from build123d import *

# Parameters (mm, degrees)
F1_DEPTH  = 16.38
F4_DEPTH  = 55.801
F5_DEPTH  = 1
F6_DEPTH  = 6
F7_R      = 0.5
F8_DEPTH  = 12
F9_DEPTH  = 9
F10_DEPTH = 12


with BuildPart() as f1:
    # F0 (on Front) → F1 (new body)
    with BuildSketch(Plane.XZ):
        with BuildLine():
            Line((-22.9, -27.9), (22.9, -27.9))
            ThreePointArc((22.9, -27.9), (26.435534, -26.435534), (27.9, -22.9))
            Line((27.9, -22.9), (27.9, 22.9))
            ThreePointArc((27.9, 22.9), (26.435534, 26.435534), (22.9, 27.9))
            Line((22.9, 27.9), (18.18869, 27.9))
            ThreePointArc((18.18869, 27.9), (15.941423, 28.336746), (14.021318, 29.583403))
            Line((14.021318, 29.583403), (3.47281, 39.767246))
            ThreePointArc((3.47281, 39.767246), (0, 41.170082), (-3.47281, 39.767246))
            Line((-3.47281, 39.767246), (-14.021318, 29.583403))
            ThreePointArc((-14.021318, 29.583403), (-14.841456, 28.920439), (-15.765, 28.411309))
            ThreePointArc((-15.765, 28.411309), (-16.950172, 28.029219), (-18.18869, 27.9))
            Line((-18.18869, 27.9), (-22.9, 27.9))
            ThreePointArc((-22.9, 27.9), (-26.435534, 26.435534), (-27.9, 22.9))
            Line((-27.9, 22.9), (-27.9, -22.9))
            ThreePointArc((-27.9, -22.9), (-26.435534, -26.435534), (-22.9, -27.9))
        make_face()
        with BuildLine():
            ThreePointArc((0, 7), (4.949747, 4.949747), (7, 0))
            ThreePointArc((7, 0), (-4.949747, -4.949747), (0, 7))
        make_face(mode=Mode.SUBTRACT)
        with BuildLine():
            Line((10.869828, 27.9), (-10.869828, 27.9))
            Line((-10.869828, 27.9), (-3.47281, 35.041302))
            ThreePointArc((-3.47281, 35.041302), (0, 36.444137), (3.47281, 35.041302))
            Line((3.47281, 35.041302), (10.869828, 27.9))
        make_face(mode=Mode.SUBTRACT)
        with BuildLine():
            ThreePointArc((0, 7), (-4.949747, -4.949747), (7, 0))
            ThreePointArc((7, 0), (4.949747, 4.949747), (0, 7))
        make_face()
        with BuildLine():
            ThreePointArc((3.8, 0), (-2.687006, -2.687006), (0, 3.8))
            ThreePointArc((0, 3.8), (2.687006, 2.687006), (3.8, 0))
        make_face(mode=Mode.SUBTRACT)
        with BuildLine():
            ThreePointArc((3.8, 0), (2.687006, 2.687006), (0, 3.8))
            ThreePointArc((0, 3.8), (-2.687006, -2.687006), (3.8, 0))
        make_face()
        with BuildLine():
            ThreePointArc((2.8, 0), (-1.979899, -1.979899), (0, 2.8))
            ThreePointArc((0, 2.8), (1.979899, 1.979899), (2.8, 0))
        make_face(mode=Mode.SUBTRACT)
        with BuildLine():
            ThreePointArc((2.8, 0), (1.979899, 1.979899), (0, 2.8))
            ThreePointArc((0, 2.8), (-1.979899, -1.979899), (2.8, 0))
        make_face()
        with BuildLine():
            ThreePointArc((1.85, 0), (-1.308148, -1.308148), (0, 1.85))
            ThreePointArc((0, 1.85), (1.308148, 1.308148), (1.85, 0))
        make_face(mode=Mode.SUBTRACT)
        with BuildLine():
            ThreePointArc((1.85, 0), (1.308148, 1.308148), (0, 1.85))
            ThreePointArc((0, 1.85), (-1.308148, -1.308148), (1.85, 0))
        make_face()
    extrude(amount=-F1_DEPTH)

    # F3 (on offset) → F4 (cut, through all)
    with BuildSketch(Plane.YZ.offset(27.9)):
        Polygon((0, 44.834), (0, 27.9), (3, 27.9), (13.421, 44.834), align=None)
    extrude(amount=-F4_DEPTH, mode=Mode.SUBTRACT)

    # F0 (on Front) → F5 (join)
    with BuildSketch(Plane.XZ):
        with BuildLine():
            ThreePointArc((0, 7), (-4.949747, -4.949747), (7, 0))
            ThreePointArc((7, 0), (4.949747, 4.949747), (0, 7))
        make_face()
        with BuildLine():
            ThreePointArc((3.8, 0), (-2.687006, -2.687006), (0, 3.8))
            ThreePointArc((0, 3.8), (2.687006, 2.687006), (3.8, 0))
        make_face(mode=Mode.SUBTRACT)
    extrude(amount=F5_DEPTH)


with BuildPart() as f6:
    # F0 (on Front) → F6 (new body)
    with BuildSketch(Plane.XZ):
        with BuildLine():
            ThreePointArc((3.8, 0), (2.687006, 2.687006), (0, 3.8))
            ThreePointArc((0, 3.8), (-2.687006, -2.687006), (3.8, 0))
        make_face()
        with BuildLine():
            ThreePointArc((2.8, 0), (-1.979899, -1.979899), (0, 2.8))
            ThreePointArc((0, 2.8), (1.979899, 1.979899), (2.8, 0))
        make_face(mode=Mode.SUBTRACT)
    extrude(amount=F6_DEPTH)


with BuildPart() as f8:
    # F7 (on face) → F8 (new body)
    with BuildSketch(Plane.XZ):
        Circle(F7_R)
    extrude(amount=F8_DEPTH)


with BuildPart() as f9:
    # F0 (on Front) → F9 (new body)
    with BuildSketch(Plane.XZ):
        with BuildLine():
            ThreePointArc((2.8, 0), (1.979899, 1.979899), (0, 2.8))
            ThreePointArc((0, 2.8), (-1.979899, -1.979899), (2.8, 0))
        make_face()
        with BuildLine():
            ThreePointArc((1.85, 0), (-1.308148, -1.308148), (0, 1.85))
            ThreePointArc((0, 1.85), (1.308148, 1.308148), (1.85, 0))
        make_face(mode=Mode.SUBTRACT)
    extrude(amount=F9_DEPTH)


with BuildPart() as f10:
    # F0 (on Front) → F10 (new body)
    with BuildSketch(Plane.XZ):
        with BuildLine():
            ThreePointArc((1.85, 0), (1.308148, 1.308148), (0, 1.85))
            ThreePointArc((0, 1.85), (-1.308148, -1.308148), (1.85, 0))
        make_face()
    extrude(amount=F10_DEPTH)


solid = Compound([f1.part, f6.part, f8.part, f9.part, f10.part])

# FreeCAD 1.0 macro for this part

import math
import FreeCAD as App
import Part
import Sketcher
Q = App.Units.Quantity


def add_polygon(sketch, points):
    """Adds a closed chain of lines whose ends are joined by coincident constraints."""
    first, n = sketch.GeometryCount, len(points)
    for a, b in zip(points, points[1:] + points[:1]):
        sketch.addGeometry(Part.LineSegment(App.Vector(*a, 0), App.Vector(*b, 0)), False)
    for i in range(n):
        sketch.addConstraint(Sketcher.Constraint("Coincident", first + i, 2, first + (i + 1) % n, 1))

doc = App.newDocument("Part")
body = doc.addObject("PartDesign::Body", "Body")

# Sketch on XZ plane
sketch1 = body.newObject("Sketcher::SketchObject", "Sketch")
sketch1.AttachmentSupport = (doc.getObject("XZ_Plane"), [""])
sketch1.MapMode = "FlatFace"
sketch1.addGeometry(Part.LineSegment(App.Vector(-22.9, -27.9, 0), App.Vector(22.9, -27.9, 0)), False)
sketch1.addGeometry(Part.ArcOfCircle(Part.Circle(App.Vector(22.9, -22.9, 0), App.Vector(0, 0, 1), 5), math.radians(-90.000004), math.radians(0.000004)), False)
sketch1.addGeometry(Part.LineSegment(App.Vector(27.9, -22.9, 0), App.Vector(27.9, 22.9, 0)), False)
sketch1.addGeometry(Part.ArcOfCircle(Part.Circle(App.Vector(22.9, 22.9, 0), App.Vector(0, 0, 1), 5), math.radians(-0.000004), math.radians(90.000004)), False)
sketch1.addGeometry(Part.LineSegment(App.Vector(22.9, 27.9, 0), App.Vector(18.18869, 27.9, 0)), False)
sketch1.addGeometry(Part.ArcOfCircle(Part.Circle(App.Vector(18.188688, 33.899995, 0), App.Vector(0, 0, 1), 5.999995), math.radians(-133.992345), math.radians(-89.999982)), False)
sketch1.addGeometry(Part.LineSegment(App.Vector(14.021318, 29.583403, 0), App.Vector(3.47281, 39.767246, 0)), False)
sketch1.addGeometry(Part.ArcOfCircle(Part.Circle(App.Vector(0, 36.170083, 0), App.Vector(0, 0, 1), 4.999999), math.radians(46.007668), math.radians(133.992332)), False)
sketch1.addGeometry(Part.LineSegment(App.Vector(-3.47281, 39.767246, 0), App.Vector(-14.021318, 29.583403, 0)), False)
sketch1.addGeometry(Part.ArcOfCircle(Part.Circle(App.Vector(-18.188683, 33.899988, 0), App.Vector(0, 0, 1), 5.999986), math.radians(-66.174776), math.radians(-46.007644)), False)
sketch1.addGeometry(Part.ArcOfCircle(Part.Circle(App.Vector(-18.188693, 33.900018, 0), App.Vector(0, 0, 1), 6.000018), math.radians(-89.999968), math.radians(-66.174799)), False)
sketch1.addGeometry(Part.LineSegment(App.Vector(-18.18869, 27.9, 0), App.Vector(-22.9, 27.9, 0)), False)
sketch1.addGeometry(Part.ArcOfCircle(Part.Circle(App.Vector(-22.9, 22.9, 0), App.Vector(0, 0, 1), 5), math.radians(89.999996), math.radians(180.000004)), False)
sketch1.addGeometry(Part.LineSegment(App.Vector(-27.9, 22.9, 0), App.Vector(-27.9, -22.9, 0)), False)
sketch1.addGeometry(Part.ArcOfCircle(Part.Circle(App.Vector(-22.9, -22.9, 0), App.Vector(0, 0, 1), 5), math.radians(179.999996), math.radians(270.000004)), False)
sketch1.addGeometry(Part.LineSegment(App.Vector(3.47281, 35.041302, 0), App.Vector(10.869828, 27.9, 0)), False)
sketch1.addGeometry(Part.LineSegment(App.Vector(10.869828, 27.9, 0), App.Vector(-10.869828, 27.9, 0)), False)
sketch1.addGeometry(Part.LineSegment(App.Vector(-10.869828, 27.9, 0), App.Vector(-3.47281, 35.041302, 0)), False)
sketch1.addGeometry(Part.ArcOfCircle(Part.Circle(App.Vector(0, 31.444135, 0), App.Vector(0, 0, 1), 5.000002), math.radians(46.007696), math.radians(133.992304)), False)
sketch1.addConstraint(Sketcher.Constraint("Coincident", 0, 2, 1, 1))
sketch1.addConstraint(Sketcher.Constraint("Coincident", 1, 2, 2, 1))
sketch1.addConstraint(Sketcher.Constraint("Coincident", 2, 2, 3, 1))
sketch1.addConstraint(Sketcher.Constraint("Coincident", 3, 2, 4, 1))
sketch1.addConstraint(Sketcher.Constraint("Coincident", 4, 2, 5, 2))
sketch1.addConstraint(Sketcher.Constraint("Coincident", 5, 1, 6, 1))
sketch1.addConstraint(Sketcher.Constraint("Coincident", 6, 2, 7, 1))
sketch1.addConstraint(Sketcher.Constraint("Coincident", 7, 2, 8, 1))
sketch1.addConstraint(Sketcher.Constraint("Coincident", 8, 2, 9, 2))
sketch1.addConstraint(Sketcher.Constraint("Coincident", 9, 1, 10, 2))
sketch1.addConstraint(Sketcher.Constraint("Coincident", 10, 1, 11, 1))
sketch1.addConstraint(Sketcher.Constraint("Coincident", 11, 2, 12, 1))
sketch1.addConstraint(Sketcher.Constraint("Coincident", 12, 2, 13, 1))
sketch1.addConstraint(Sketcher.Constraint("Coincident", 13, 2, 14, 1))
sketch1.addConstraint(Sketcher.Constraint("Coincident", 14, 2, 0, 1))
sketch1.addConstraint(Sketcher.Constraint("Coincident", 15, 2, 16, 1))
sketch1.addConstraint(Sketcher.Constraint("Coincident", 16, 2, 17, 1))
sketch1.addConstraint(Sketcher.Constraint("Coincident", 17, 2, 18, 2))
sketch1.addConstraint(Sketcher.Constraint("Coincident", 18, 1, 15, 1))
sketch1.addConstraint(Sketcher.Constraint("Horizontal", 0))
sketch1.addConstraint(Sketcher.Constraint("Vertical", 2))
sketch1.addConstraint(Sketcher.Constraint("Horizontal", 4))
sketch1.addConstraint(Sketcher.Constraint("Horizontal", 11))
sketch1.addConstraint(Sketcher.Constraint("Vertical", 13))
sketch1.addConstraint(Sketcher.Constraint("Horizontal", 16))
sketch1.addConstraint(Sketcher.Constraint("PointOnObject", 7, 3, -2))
sketch1.addConstraint(Sketcher.Constraint("PointOnObject", 18, 3, -2))
sketch1.addConstraint(Sketcher.Constraint("Radius", 1, Q("5 mm")))
sketch1.addConstraint(Sketcher.Constraint("Radius", 3, Q("5 mm")))
sketch1.addConstraint(Sketcher.Constraint("Radius", 7, Q("4.999999 mm")))
sketch1.addConstraint(Sketcher.Constraint("Radius", 12, Q("5 mm")))
sketch1.addConstraint(Sketcher.Constraint("Radius", 14, Q("5 mm")))
sketch1.addConstraint(Sketcher.Constraint("Radius", 18, Q("5.000002 mm")))
sketch1.addConstraint(Sketcher.Constraint("DistanceX", 0, 1, 0, 2, Q("45.8 mm")))
sketch1.addConstraint(Sketcher.Constraint("DistanceY", 2, 1, 2, 2, Q("45.8 mm")))
sketch1.addConstraint(Sketcher.Constraint("DistanceY", 13, 2, 13, 1, Q("45.8 mm")))
sketch1.addConstraint(Sketcher.Constraint("DistanceX", 0, 2, 1, 2, Q("5 mm")))
sketch1.addConstraint(Sketcher.Constraint("DistanceY", 0, 2, 1, 2, Q("5 mm")))
sketch1.addConstraint(Sketcher.Constraint("DistanceX", 3, 2, 2, 2, Q("5 mm")))
sketch1.addConstraint(Sketcher.Constraint("DistanceY", 2, 2, 3, 2, Q("5 mm")))
sketch1.addConstraint(Sketcher.Constraint("DistanceX", 12, 2, 11, 2, Q("5 mm")))
sketch1.addConstraint(Sketcher.Constraint("DistanceY", 12, 2, 11, 2, Q("5 mm")))
sketch1.addConstraint(Sketcher.Constraint("DistanceY", 0, 2, 13, 2, Q("5 mm")))
sketch1.addConstraint(Sketcher.Constraint("DistanceX", 13, 2, 14, 2, Q("5 mm")))
sketch1.addConstraint(Sketcher.Constraint("DistanceX", -1, 1, 1, 3, Q("22.9 mm")))
sketch1.addConstraint(Sketcher.Constraint("DistanceY", 1, 3, -1, 1, Q("22.9 mm")))
sketch1.addConstraint(Sketcher.Constraint("DistanceY", -1, 1, 15, 2, Q("27.9 mm")))
sketch1.addConstraint(Sketcher.Constraint("DistanceX", 9, 1, -1, 1, Q("15.765 mm")))
sketch1.addConstraint(Sketcher.Constraint("Radius", 5, Q("5.999995 mm")))
sketch1.addConstraint(Sketcher.Constraint("Radius", 9, Q("5.999986 mm")))
sketch1.addConstraint(Sketcher.Constraint("Radius", 10, Q("6.000018 mm")))
sketch1.addConstraint(Sketcher.Constraint("DistanceX", 4, 2, 4, 1, Q("4.71131 mm")))
sketch1.addConstraint(Sketcher.Constraint("DistanceX", 11, 2, 11, 1, Q("4.71131 mm")))
sketch1.addConstraint(Sketcher.Constraint("DistanceX", 16, 2, 16, 1, Q("21.739656 mm")))
sketch1.addConstraint(Sketcher.Constraint("DistanceX", -1, 1, 5, 3, Q("18.188688 mm")))
sketch1.addConstraint(Sketcher.Constraint("DistanceX", -1, 1, 5, 1, Q("14.021318 mm")))
sketch1.addConstraint(Sketcher.Constraint("DistanceX", -1, 1, 6, 2, Q("3.47281 mm")))
sketch1.addConstraint(Sketcher.Constraint("DistanceX", 7, 2, -1, 1, Q("3.47281 mm")))
sketch1.addConstraint(Sketcher.Constraint("DistanceX", 8, 2, -1, 1, Q("14.021318 mm")))
sketch1.addConstraint(Sketcher.Constraint("DistanceY", -1, 1, 9, 1, Q("28.411309 mm")))
sketch1.addConstraint(Sketcher.Constraint("DistanceX", 17, 2, -1, 1, Q("3.47281 mm")))
sketch1.addConstraint(Sketcher.Constraint("DistanceX", -1, 1, 18, 1, Q("3.47281 mm")))
sketch1.addConstraint(Sketcher.Constraint("DistanceX", 9, 3, 5, 3, Q("36.377371 mm")))
sketch1.addConstraint(Sketcher.Constraint("DistanceY", 18, 3, 5, 3, Q("2.45586 mm")))
sketch1.addConstraint(Sketcher.Constraint("DistanceY", 18, 3, 6, 2, Q("8.323111 mm")))
sketch1.addConstraint(Sketcher.Constraint("DistanceX", 15, 2, 5, 1, Q("3.15149 mm")))
pad1 = body.newObject("PartDesign::Pad", "Pad")
pad1.Profile = sketch1
pad1.Length = 16.38
pad1.Reversed = True

# Sketch on YZ plane
sketch2 = body.newObject("Sketcher::SketchObject", "Sketch001")
sketch2.AttachmentSupport = (doc.getObject("YZ_Plane"), [""])
sketch2.MapMode = "FlatFace"
sketch2.AttachmentOffset = App.Placement(App.Vector(0, 0, 27.9), App.Rotation())
add_polygon(sketch2, [(0, 44.8), (0, 27.9), (3, 27.9), (13.4, 44.8)])  # lines 0-3
sketch2.addConstraint(Sketcher.Constraint("Vertical", 0))
sketch2.addConstraint(Sketcher.Constraint("Horizontal", 1))
sketch2.addConstraint(Sketcher.Constraint("Horizontal", 3))
sketch2.addConstraint(Sketcher.Constraint("PointOnObject", 0, 2, -2))
sketch2.addConstraint(Sketcher.Constraint("DistanceX", 1, 1, 1, 2, Q("3 mm")))
sketch2.addConstraint(Sketcher.Constraint("DistanceY", -1, 1, 0, 2, Q("27.9 mm")))
sketch2.addConstraint(Sketcher.Constraint("DistanceX", 3, 2, 3, 1, Q("13.421 mm")))
sketch2.addConstraint(Sketcher.Constraint("DistanceY", 0, 2, 0, 1, Q("16.934 mm")))
pocket1 = body.newObject("PartDesign::Pocket", "Pocket")
pocket1.Profile = sketch2
pocket1.Type = "ThroughAll"

# Sketch on XZ plane
sketch3 = body.newObject("Sketcher::SketchObject", "Sketch002")
sketch3.AttachmentSupport = (doc.getObject("XZ_Plane"), [""])
sketch3.MapMode = "FlatFace"
sketch3.addGeometry(Part.ArcOfCircle(Part.Circle(App.Vector(0, 0, 0), App.Vector(0, 0, 1), 7), math.radians(90), math.radians(360)), False)
sketch3.addGeometry(Part.ArcOfCircle(Part.Circle(App.Vector(0, 0, 0), App.Vector(0, 0, 1), 7), math.radians(0), math.radians(90)), False)
sketch3.addGeometry(Part.ArcOfCircle(Part.Circle(App.Vector(0, 0, 0), App.Vector(0, 0, 1), 3.8), math.radians(0), math.radians(90)), False)
sketch3.addGeometry(Part.ArcOfCircle(Part.Circle(App.Vector(0, 0, 0), App.Vector(0, 0, 1), 3.8), math.radians(90), math.radians(360)), False)
sketch3.addConstraint(Sketcher.Constraint("Tangent", 0, 1, 1, 2))
sketch3.addConstraint(Sketcher.Constraint("Coincident", 1, 1, 0, 2))
sketch3.addConstraint(Sketcher.Constraint("Tangent", 2, 1, 3, 2))
sketch3.addConstraint(Sketcher.Constraint("Coincident", 3, 1, 2, 2))
sketch3.addConstraint(Sketcher.Constraint("Coincident", 0, 3, -1, 1))
sketch3.addConstraint(Sketcher.Constraint("Coincident", 2, 3, -1, 1))
sketch3.addConstraint(Sketcher.Constraint("PointOnObject", 0, 1, -2))
sketch3.addConstraint(Sketcher.Constraint("PointOnObject", 1, 1, -1))
sketch3.addConstraint(Sketcher.Constraint("PointOnObject", 2, 1, -1))
sketch3.addConstraint(Sketcher.Constraint("PointOnObject", 3, 1, -2))
sketch3.addConstraint(Sketcher.Constraint("Radius", 0, Q("7 mm")))
sketch3.addConstraint(Sketcher.Constraint("Radius", 2, Q("3.799999 mm")))
pad2 = body.newObject("PartDesign::Pad", "Pad001")
pad2.Profile = sketch3
pad2.Length = 1
body2 = doc.addObject("PartDesign::Body", "Body001")

# Sketch on XZ plane
sketch4 = body2.newObject("Sketcher::SketchObject", "Sketch003")
sketch4.AttachmentSupport = (doc.getObject("XZ_Plane001"), [""])
sketch4.MapMode = "FlatFace"
sketch4.addGeometry(Part.ArcOfCircle(Part.Circle(App.Vector(0, 0, 0), App.Vector(0, 0, 1), 3.8), math.radians(0), math.radians(90)), False)
sketch4.addGeometry(Part.ArcOfCircle(Part.Circle(App.Vector(0, 0, 0), App.Vector(0, 0, 1), 3.8), math.radians(90), math.radians(360)), False)
sketch4.addGeometry(Part.ArcOfCircle(Part.Circle(App.Vector(0, 0, 0), App.Vector(0, 0, 1), 2.8), math.radians(0), math.radians(90)), False)
sketch4.addGeometry(Part.ArcOfCircle(Part.Circle(App.Vector(0, 0, 0), App.Vector(0, 0, 1), 2.8), math.radians(90), math.radians(360)), False)
sketch4.addConstraint(Sketcher.Constraint("Tangent", 0, 1, 1, 2))
sketch4.addConstraint(Sketcher.Constraint("Coincident", 1, 1, 0, 2))
sketch4.addConstraint(Sketcher.Constraint("Tangent", 2, 1, 3, 2))
sketch4.addConstraint(Sketcher.Constraint("Coincident", 3, 1, 2, 2))
sketch4.addConstraint(Sketcher.Constraint("Coincident", 0, 3, -1, 1))
sketch4.addConstraint(Sketcher.Constraint("Coincident", 2, 3, -1, 1))
sketch4.addConstraint(Sketcher.Constraint("PointOnObject", 0, 1, -1))
sketch4.addConstraint(Sketcher.Constraint("PointOnObject", 1, 1, -2))
sketch4.addConstraint(Sketcher.Constraint("PointOnObject", 2, 1, -1))
sketch4.addConstraint(Sketcher.Constraint("PointOnObject", 3, 1, -2))
sketch4.addConstraint(Sketcher.Constraint("Radius", 0, Q("3.799999 mm")))
sketch4.addConstraint(Sketcher.Constraint("Radius", 2, Q("2.8 mm")))
pad3 = body2.newObject("PartDesign::Pad", "Pad002")
pad3.Profile = sketch4
pad3.Length = 6
body3 = doc.addObject("PartDesign::Body", "Body002")

# Sketch on XZ plane
sketch5 = body3.newObject("Sketcher::SketchObject", "Sketch004")
sketch5.AttachmentSupport = (doc.getObject("XZ_Plane002"), [""])
sketch5.MapMode = "FlatFace"
sketch5.addGeometry(Part.Circle(App.Vector(0, 0, 0), App.Vector(0, 0, 1), 0.5), False)
sketch5.addConstraint(Sketcher.Constraint("Coincident", 0, 3, -1, 1))
sketch5.addConstraint(Sketcher.Constraint("Diameter", 0, Q("1 mm")))
pad4 = body3.newObject("PartDesign::Pad", "Pad003")
pad4.Profile = sketch5
pad4.Length = 12
body4 = doc.addObject("PartDesign::Body", "Body003")

# Sketch on XZ plane
sketch6 = body4.newObject("Sketcher::SketchObject", "Sketch005")
sketch6.AttachmentSupport = (doc.getObject("XZ_Plane003"), [""])
sketch6.MapMode = "FlatFace"
sketch6.addGeometry(Part.ArcOfCircle(Part.Circle(App.Vector(0, 0, 0), App.Vector(0, 0, 1), 2.8), math.radians(0), math.radians(90)), False)
sketch6.addGeometry(Part.ArcOfCircle(Part.Circle(App.Vector(0, 0, 0), App.Vector(0, 0, 1), 2.8), math.radians(90), math.radians(360)), False)
sketch6.addGeometry(Part.ArcOfCircle(Part.Circle(App.Vector(0, 0, 0), App.Vector(0, 0, 1), 1.8), math.radians(0), math.radians(90)), False)
sketch6.addGeometry(Part.ArcOfCircle(Part.Circle(App.Vector(0, 0, 0), App.Vector(0, 0, 1), 1.9), math.radians(90), math.radians(360)), False)
sketch6.addConstraint(Sketcher.Constraint("Tangent", 0, 1, 1, 2))
sketch6.addConstraint(Sketcher.Constraint("Coincident", 1, 1, 0, 2))
sketch6.addConstraint(Sketcher.Constraint("Tangent", 2, 1, 3, 2))
sketch6.addConstraint(Sketcher.Constraint("Coincident", 3, 1, 2, 2))
sketch6.addConstraint(Sketcher.Constraint("Coincident", 0, 3, -1, 1))
sketch6.addConstraint(Sketcher.Constraint("Coincident", 2, 3, -1, 1))
sketch6.addConstraint(Sketcher.Constraint("PointOnObject", 0, 1, -1))
sketch6.addConstraint(Sketcher.Constraint("PointOnObject", 1, 1, -2))
sketch6.addConstraint(Sketcher.Constraint("PointOnObject", 2, 1, -1))
sketch6.addConstraint(Sketcher.Constraint("PointOnObject", 3, 1, -2))
sketch6.addConstraint(Sketcher.Constraint("Radius", 0, Q("2.8 mm")))
sketch6.addConstraint(Sketcher.Constraint("Radius", 2, Q("1.849998 mm")))
pad5 = body4.newObject("PartDesign::Pad", "Pad004")
pad5.Profile = sketch6
pad5.Length = 9
body5 = doc.addObject("PartDesign::Body", "Body004")

# Sketch on XZ plane
sketch7 = body5.newObject("Sketcher::SketchObject", "Sketch006")
sketch7.AttachmentSupport = (doc.getObject("XZ_Plane004"), [""])
sketch7.MapMode = "FlatFace"
sketch7.addGeometry(Part.ArcOfCircle(Part.Circle(App.Vector(0, 0, 0), App.Vector(0, 0, 1), 1.8), math.radians(0), math.radians(90)), False)
sketch7.addGeometry(Part.ArcOfCircle(Part.Circle(App.Vector(0, 0, 0), App.Vector(0, 0, 1), 1.9), math.radians(90), math.radians(360)), False)
sketch7.addConstraint(Sketcher.Constraint("Tangent", 0, 1, 1, 2))
sketch7.addConstraint(Sketcher.Constraint("Coincident", 1, 1, 0, 2))
sketch7.addConstraint(Sketcher.Constraint("Coincident", 0, 3, -1, 1))
sketch7.addConstraint(Sketcher.Constraint("PointOnObject", 0, 1, -1))
sketch7.addConstraint(Sketcher.Constraint("PointOnObject", 1, 1, -2))
sketch7.addConstraint(Sketcher.Constraint("Radius", 0, Q("1.849998 mm")))
pad6 = body5.newObject("PartDesign::Pad", "Pad005")
pad6.Profile = sketch7
pad6.Length = 12

doc.recompute()
